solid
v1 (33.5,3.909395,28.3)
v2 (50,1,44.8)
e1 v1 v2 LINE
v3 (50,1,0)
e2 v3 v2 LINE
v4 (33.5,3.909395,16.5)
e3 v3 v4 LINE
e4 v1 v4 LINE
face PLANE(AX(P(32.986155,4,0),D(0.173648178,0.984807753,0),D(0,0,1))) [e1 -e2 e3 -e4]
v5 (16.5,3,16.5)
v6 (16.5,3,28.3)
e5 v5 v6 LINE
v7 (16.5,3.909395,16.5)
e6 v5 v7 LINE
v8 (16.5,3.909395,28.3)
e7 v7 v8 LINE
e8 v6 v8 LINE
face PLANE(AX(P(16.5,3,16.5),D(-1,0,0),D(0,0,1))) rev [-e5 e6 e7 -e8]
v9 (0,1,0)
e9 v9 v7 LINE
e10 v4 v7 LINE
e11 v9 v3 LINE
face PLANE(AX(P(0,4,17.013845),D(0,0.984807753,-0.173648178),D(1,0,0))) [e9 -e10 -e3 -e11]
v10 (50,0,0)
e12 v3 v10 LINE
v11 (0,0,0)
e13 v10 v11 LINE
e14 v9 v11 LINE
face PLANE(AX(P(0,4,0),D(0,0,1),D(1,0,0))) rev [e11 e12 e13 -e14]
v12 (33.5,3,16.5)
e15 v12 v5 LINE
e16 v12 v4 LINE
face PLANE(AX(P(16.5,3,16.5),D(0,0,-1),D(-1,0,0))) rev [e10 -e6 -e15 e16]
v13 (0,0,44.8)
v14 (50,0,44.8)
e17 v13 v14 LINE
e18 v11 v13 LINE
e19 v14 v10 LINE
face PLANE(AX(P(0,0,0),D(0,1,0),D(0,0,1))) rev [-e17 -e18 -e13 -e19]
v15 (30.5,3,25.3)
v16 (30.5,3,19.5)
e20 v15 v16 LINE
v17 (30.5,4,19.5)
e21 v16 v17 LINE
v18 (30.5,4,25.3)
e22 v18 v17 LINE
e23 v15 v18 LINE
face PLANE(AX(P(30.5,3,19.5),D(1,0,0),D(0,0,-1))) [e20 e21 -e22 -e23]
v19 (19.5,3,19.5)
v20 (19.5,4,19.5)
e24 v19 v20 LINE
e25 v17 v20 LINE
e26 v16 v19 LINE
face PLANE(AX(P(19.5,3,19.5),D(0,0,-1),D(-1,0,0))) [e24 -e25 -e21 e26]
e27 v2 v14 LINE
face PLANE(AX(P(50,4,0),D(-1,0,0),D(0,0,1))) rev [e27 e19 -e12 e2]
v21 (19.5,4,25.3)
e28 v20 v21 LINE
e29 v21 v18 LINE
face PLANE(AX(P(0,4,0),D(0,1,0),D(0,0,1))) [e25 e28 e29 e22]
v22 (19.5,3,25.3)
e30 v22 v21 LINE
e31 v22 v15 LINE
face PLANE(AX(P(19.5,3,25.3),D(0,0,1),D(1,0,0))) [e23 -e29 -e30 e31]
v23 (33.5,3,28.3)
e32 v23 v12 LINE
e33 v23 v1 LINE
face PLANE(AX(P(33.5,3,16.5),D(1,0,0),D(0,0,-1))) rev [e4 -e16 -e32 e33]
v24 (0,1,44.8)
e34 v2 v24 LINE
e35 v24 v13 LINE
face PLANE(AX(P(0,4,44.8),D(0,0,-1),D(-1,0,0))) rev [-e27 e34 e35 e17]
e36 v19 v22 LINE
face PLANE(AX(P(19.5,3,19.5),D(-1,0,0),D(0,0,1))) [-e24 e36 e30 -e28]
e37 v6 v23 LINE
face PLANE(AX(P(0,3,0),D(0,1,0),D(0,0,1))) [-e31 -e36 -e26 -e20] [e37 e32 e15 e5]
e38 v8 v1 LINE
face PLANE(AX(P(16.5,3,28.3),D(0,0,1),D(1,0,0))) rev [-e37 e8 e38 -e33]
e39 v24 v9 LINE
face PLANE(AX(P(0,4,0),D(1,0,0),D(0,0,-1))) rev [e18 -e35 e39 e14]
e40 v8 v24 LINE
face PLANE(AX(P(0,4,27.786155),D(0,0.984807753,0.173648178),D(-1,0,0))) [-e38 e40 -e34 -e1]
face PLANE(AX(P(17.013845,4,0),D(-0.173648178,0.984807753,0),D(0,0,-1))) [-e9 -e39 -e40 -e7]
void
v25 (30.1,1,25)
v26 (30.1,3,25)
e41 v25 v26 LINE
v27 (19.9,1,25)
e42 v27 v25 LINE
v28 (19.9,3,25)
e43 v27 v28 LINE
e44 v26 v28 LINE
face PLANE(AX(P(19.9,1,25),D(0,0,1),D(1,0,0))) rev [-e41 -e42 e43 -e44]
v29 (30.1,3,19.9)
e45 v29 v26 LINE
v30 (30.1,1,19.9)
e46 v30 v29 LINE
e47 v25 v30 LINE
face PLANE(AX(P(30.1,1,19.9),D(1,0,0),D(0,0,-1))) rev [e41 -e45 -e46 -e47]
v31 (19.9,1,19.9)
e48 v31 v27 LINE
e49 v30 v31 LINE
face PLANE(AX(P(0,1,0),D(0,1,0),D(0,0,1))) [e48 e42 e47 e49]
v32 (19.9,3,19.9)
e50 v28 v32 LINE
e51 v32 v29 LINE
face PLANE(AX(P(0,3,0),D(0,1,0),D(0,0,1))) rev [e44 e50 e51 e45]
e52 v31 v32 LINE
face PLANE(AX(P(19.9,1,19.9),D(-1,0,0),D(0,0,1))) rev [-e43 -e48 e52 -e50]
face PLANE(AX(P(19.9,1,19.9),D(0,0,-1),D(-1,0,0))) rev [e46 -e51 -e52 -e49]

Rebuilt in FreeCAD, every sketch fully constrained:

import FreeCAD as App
import Part
import Sketcher
from FreeCAD import Vector
Q = App.Units.Quantity


def edges_at(feature, points):
    """Names of the edges that pass closest to the given points."""
    edges = feature.Shape.Edges
    near = lambda p: min(range(len(edges)), key=lambda i: edges[i].distToShape(Part.Vertex(*p))[0])
    return sorted({f"Edge{near(p) + 1}" for p in points})

doc = App.newDocument("Part")
params = doc.addObject("Spreadsheet::Sheet", "Params")
for row, (alias, value) in enumerate([
    ("sketch1_width", "50 mm"),
    ("sketch1_height", "44.8 mm"),
    ("pad1_length", "4 mm"),
    ("chamfer_size", "3 mm"),
    ("chamfer_size2", "17.013845 mm"),
    ("chamfer2_size", "3 mm"),
    ("chamfer2_size2", "17.013845 mm"),
    ("chamfer3_size", "3 mm"),
    ("chamfer3_size2", "17.013845 mm"),
    ("chamfer4_size", "3 mm"),
    ("chamfer4_size2", "17.013845 mm"),
    ("sketch2_width", "17 mm"),
    ("sketch2_width2", "11 mm"),
    ("sketch2_height", "11.8 mm"),
    ("sketch2_height2", "5.8 mm"),
    ("pocket1_length", "1 mm"),
    ("sketch3_width", "10.2 mm"),
    ("sketch3_height", "5.1 mm"),
    ("pocket2_length", "3 mm"),
    ("sketch4_width", "11 mm"),
    ("sketch4_height", "5.8 mm"),
    ("pad2_length", "1 mm"),
], start=1):
    params.set(f"A{row}", alias)
    params.set(f"B{row}", "=" + value)
    params.setAlias(f"B{row}", alias)

body = doc.addObject("PartDesign::Body", "Body")

# Sketch on XZ plane
sketch1 = body.newObject("Sketcher::SketchObject", "Sketch")
sketch1.AttachmentSupport = (doc.getObject("XZ_Plane"), [""])
sketch1.MapMode = "FlatFace"
sketch1.addGeometry(Part.LineSegment(Vector(0, 0, 0), Vector(0, 45, 0)), False)
sketch1.addGeometry(Part.LineSegment(Vector(0, 45, 0), Vector(50, 45, 0)), False)
sketch1.addGeometry(Part.LineSegment(Vector(50, 45, 0), Vector(50, 0, 0)), False)
sketch1.addGeometry(Part.LineSegment(Vector(50, 0, 0), Vector(0, 0, 0)), False)
sketch1.addConstraint(Sketcher.Constraint("Coincident", 0, 2, 1, 1))
sketch1.addConstraint(Sketcher.Constraint("Coincident", 1, 2, 2, 1))
sketch1.addConstraint(Sketcher.Constraint("Coincident", 2, 2, 3, 1))
sketch1.addConstraint(Sketcher.Constraint("Coincident", 3, 2, 0, 1))
sketch1.addConstraint(Sketcher.Constraint("Vertical", 0))
sketch1.addConstraint(Sketcher.Constraint("Horizontal", 1))
sketch1.addConstraint(Sketcher.Constraint("Vertical", 2))
sketch1.addConstraint(Sketcher.Constraint("Horizontal", 3))
sketch1.addConstraint(Sketcher.Constraint("Coincident", 3, 2, -1, 1))
sketch1.addConstraint(Sketcher.Constraint("DistanceX", 1, 1, 1, 2, Q("50 mm")))
sketch1.addConstraint(Sketcher.Constraint("DistanceY", 0, 1, 0, 2, Q("44.8 mm")))
sketch1.setExpression("Constraints[9]", "Params.sketch1_width")
sketch1.setExpression("Constraints[10]", "Params.sketch1_height")
pad1 = body.newObject("PartDesign::Pad", "Pad")
pad1.Profile = sketch1
pad1.setExpression("Length", "Params.pad1_length")
pad1.Reversed = True
doc.recompute()

chamfer = body.newObject("PartDesign::Chamfer", "Chamfer")
chamfer.Base = (pad1, edges_at(pad1, [(50, 4, 22.4)]))
chamfer.ChamferType = "Two distances"
chamfer.setExpression("Size", "Params.chamfer_size")
chamfer.setExpression("Size2", "Params.chamfer_size2")
doc.recompute()

chamfer2 = body.newObject("PartDesign::Chamfer", "Chamfer001")
chamfer2.Base = (chamfer, edges_at(chamfer, [(16.493, 4, 0)]))
chamfer2.ChamferType = "Two distances"
chamfer2.setExpression("Size", "Params.chamfer2_size")
chamfer2.setExpression("Size2", "Params.chamfer2_size2")
chamfer2.FlipDirection = True
doc.recompute()

chamfer3 = body.newObject("PartDesign::Chamfer", "Chamfer002")
chamfer3.Base = (chamfer2, edges_at(chamfer2, [(0, 4, 30.907)]))
chamfer3.ChamferType = "Two distances"
chamfer3.setExpression("Size", "Params.chamfer3_size")
chamfer3.setExpression("Size2", "Params.chamfer3_size2")
chamfer3.FlipDirection = True
doc.recompute()

chamfer4 = body.newObject("PartDesign::Chamfer", "Chamfer003")
chamfer4.Base = (chamfer3, edges_at(chamfer3, [(25, 4, 44.8)]))
chamfer4.ChamferType = "Two distances"
chamfer4.setExpression("Size", "Params.chamfer4_size")
chamfer4.setExpression("Size2", "Params.chamfer4_size2")
chamfer4.FlipDirection = True

# Sketch on XZ plane
sketch2 = body.newObject("Sketcher::SketchObject", "Sketch001")
sketch2.AttachmentSupport = (doc.getObject("XZ_Plane"), [""])
sketch2.MapMode = "FlatFace"
sketch2.AttachmentOffset = App.Placement(Vector(0, 0, -4), App.Rotation())
sketch2.addGeometry(Part.LineSegment(Vector(16, 16, 0), Vector(16, 28, 0)), False)
sketch2.addGeometry(Part.LineSegment(Vector(16, 28, 0), Vector(34, 28, 0)), False)
sketch2.addGeometry(Part.LineSegment(Vector(34, 28, 0), Vector(34, 16, 0)), False)
sketch2.addGeometry(Part.LineSegment(Vector(34, 16, 0), Vector(16, 16, 0)), False)
sketch2.addGeometry(Part.LineSegment(Vector(30, 25, 0), Vector(20, 25, 0)), False)
sketch2.addGeometry(Part.LineSegment(Vector(20, 25, 0), Vector(20, 20, 0)), False)
sketch2.addGeometry(Part.LineSegment(Vector(20, 20, 0), Vector(30, 20, 0)), False)
sketch2.addGeometry(Part.LineSegment(Vector(30, 20, 0), Vector(30, 25, 0)), False)
sketch2.addConstraint(Sketcher.Constraint("Coincident", 0, 2, 1, 1))
sketch2.addConstraint(Sketcher.Constraint("Coincident", 1, 2, 2, 1))
sketch2.addConstraint(Sketcher.Constraint("Coincident", 2, 2, 3, 1))
sketch2.addConstraint(Sketcher.Constraint("Coincident", 3, 2, 0, 1))
sketch2.addConstraint(Sketcher.Constraint("Coincident", 4, 2, 5, 1))
sketch2.addConstraint(Sketcher.Constraint("Coincident", 5, 2, 6, 1))
sketch2.addConstraint(Sketcher.Constraint("Coincident", 6, 2, 7, 1))
sketch2.addConstraint(Sketcher.Constraint("Coincident", 7, 2, 4, 1))
sketch2.addConstraint(Sketcher.Constraint("Vertical", 0))
sketch2.addConstraint(Sketcher.Constraint("Horizontal", 1))
sketch2.addConstraint(Sketcher.Constraint("Vertical", 2))
sketch2.addConstraint(Sketcher.Constraint("Horizontal", 3))
sketch2.addConstraint(Sketcher.Constraint("Horizontal", 4))
sketch2.addConstraint(Sketcher.Constraint("Vertical", 5))
sketch2.addConstraint(Sketcher.Constraint("Horizontal", 6))
sketch2.addConstraint(Sketcher.Constraint("Vertical", 7))
sketch2.addConstraint(Sketcher.Constraint("DistanceX", 1, 1, 1, 2, Q("17 mm")))
sketch2.addConstraint(Sketcher.Constraint("DistanceX", 4, 2, 4, 1, Q("11 mm")))
sketch2.addConstraint(Sketcher.Constraint("DistanceY", 0, 1, 0, 2, Q("11.8 mm")))
sketch2.addConstraint(Sketcher.Constraint("DistanceY", 5, 2, 5, 1, Q("5.8 mm")))
sketch2.addConstraint(Sketcher.Constraint("DistanceX", 0, 2, 4, 2, Q("3 mm")))
sketch2.addConstraint(Sketcher.Constraint("DistanceY", 4, 2, 0, 2, Q("3 mm")))
sketch2.addConstraint(Sketcher.Constraint("DistanceX", -1, 1, 0, 2, Q("16.5 mm")))
sketch2.addConstraint(Sketcher.Constraint("DistanceY", -1, 1, 0, 2, Q("28.3 mm")))
sketch2.setExpression("Constraints[16]", "Params.sketch2_width")
sketch2.setExpression("Constraints[17]", "Params.sketch2_width2")
sketch2.setExpression("Constraints[18]", "Params.sketch2_height")
sketch2.setExpression("Constraints[19]", "Params.sketch2_height2")
pocket1 = body.newObject("PartDesign::Pocket", "Pocket")
pocket1.Profile = sketch2
pocket1.setExpression("Length", "Params.pocket1_length")
pocket1.Reversed = True

# Sketch on XZ plane
sketch3 = body.newObject("Sketcher::SketchObject", "Sketch002")
sketch3.AttachmentSupport = (doc.getObject("XZ_Plane"), [""])
sketch3.MapMode = "FlatFace"
sketch3.AttachmentOffset = App.Placement(Vector(0, 0, -4), App.Rotation())
sketch3.addGeometry(Part.LineSegment(Vector(20, 20, 0), Vector(20, 25, 0)), False)
sketch3.addGeometry(Part.LineSegment(Vector(20, 25, 0), Vector(30, 25, 0)), False)
sketch3.addGeometry(Part.LineSegment(Vector(30, 25, 0), Vector(30, 20, 0)), False)
sketch3.addGeometry(Part.LineSegment(Vector(30, 20, 0), Vector(20, 20, 0)), False)
sketch3.addConstraint(Sketcher.Constraint("Coincident", 0, 2, 1, 1))
sketch3.addConstraint(Sketcher.Constraint("Coincident", 1, 2, 2, 1))
sketch3.addConstraint(Sketcher.Constraint("Coincident", 2, 2, 3, 1))
sketch3.addConstraint(Sketcher.Constraint("Coincident", 3, 2, 0, 1))
sketch3.addConstraint(Sketcher.Constraint("Vertical", 0))
sketch3.addConstraint(Sketcher.Constraint("Horizontal", 1))
sketch3.addConstraint(Sketcher.Constraint("Vertical", 2))
sketch3.addConstraint(Sketcher.Constraint("Horizontal", 3))
sketch3.addConstraint(Sketcher.Constraint("DistanceX", 1, 1, 1, 2, Q("10.2 mm")))
sketch3.addConstraint(Sketcher.Constraint("DistanceY", 0, 1, 0, 2, Q("5.1 mm")))
sketch3.addConstraint(Sketcher.Constraint("DistanceY", -1, 1, 0, 2, Q("25 mm")))
sketch3.addConstraint(Sketcher.Constraint("DistanceX", -1, 1, 0, 2, Q("19.9 mm")))
sketch3.setExpression("Constraints[8]", "Params.sketch3_width")
sketch3.setExpression("Constraints[9]", "Params.sketch3_height")
pocket2 = body.newObject("PartDesign::Pocket", "Pocket001")
pocket2.Profile = sketch3
pocket2.setExpression("Length", "Params.pocket2_length")
pocket2.Reversed = True

# Sketch on XZ plane
sketch4 = body.newObject("Sketcher::SketchObject", "Sketch003")
sketch4.AttachmentSupport = (doc.getObject("XZ_Plane"), [""])
sketch4.MapMode = "FlatFace"
sketch4.AttachmentOffset = App.Placement(Vector(0, 0, -4), App.Rotation())
sketch4.addGeometry(Part.LineSegment(Vector(20, 20, 0), Vector(20, 25, 0)), False)
sketch4.addGeometry(Part.LineSegment(Vector(20, 25, 0), Vector(30, 25, 0)), False)
sketch4.addGeometry(Part.LineSegment(Vector(30, 25, 0), Vector(30, 20, 0)), False)
sketch4.addGeometry(Part.LineSegment(Vector(30, 20, 0), Vector(20, 20, 0)), False)
sketch4.addConstraint(Sketcher.Constraint("Coincident", 0, 2, 1, 1))
sketch4.addConstraint(Sketcher.Constraint("Coincident", 1, 2, 2, 1))
sketch4.addConstraint(Sketcher.Constraint("Coincident", 2, 2, 3, 1))
sketch4.addConstraint(Sketcher.Constraint("Coincident", 3, 2, 0, 1))
sketch4.addConstraint(Sketcher.Constraint("Vertical", 0))
sketch4.addConstraint(Sketcher.Constraint("Horizontal", 1))
sketch4.addConstraint(Sketcher.Constraint("Vertical", 2))
sketch4.addConstraint(Sketcher.Constraint("Horizontal", 3))
sketch4.addConstraint(Sketcher.Constraint("DistanceX", 1, 1, 1, 2, Q("11 mm")))
sketch4.addConstraint(Sketcher.Constraint("DistanceY", 0, 1, 0, 2, Q("5.8 mm")))
sketch4.addConstraint(Sketcher.Constraint("DistanceX", -1, 1, 0, 2, Q("19.5 mm")))
sketch4.addConstraint(Sketcher.Constraint("DistanceY", -1, 1, 0, 2, Q("25.3 mm")))
sketch4.setExpression("Constraints[8]", "Params.sketch4_width")
sketch4.setExpression("Constraints[9]", "Params.sketch4_height")
pad2 = body.newObject("PartDesign::Pad", "Pad001")
pad2.Profile = sketch4
pad2.setExpression("Length", "Params.pad2_length")

doc.recompute()
